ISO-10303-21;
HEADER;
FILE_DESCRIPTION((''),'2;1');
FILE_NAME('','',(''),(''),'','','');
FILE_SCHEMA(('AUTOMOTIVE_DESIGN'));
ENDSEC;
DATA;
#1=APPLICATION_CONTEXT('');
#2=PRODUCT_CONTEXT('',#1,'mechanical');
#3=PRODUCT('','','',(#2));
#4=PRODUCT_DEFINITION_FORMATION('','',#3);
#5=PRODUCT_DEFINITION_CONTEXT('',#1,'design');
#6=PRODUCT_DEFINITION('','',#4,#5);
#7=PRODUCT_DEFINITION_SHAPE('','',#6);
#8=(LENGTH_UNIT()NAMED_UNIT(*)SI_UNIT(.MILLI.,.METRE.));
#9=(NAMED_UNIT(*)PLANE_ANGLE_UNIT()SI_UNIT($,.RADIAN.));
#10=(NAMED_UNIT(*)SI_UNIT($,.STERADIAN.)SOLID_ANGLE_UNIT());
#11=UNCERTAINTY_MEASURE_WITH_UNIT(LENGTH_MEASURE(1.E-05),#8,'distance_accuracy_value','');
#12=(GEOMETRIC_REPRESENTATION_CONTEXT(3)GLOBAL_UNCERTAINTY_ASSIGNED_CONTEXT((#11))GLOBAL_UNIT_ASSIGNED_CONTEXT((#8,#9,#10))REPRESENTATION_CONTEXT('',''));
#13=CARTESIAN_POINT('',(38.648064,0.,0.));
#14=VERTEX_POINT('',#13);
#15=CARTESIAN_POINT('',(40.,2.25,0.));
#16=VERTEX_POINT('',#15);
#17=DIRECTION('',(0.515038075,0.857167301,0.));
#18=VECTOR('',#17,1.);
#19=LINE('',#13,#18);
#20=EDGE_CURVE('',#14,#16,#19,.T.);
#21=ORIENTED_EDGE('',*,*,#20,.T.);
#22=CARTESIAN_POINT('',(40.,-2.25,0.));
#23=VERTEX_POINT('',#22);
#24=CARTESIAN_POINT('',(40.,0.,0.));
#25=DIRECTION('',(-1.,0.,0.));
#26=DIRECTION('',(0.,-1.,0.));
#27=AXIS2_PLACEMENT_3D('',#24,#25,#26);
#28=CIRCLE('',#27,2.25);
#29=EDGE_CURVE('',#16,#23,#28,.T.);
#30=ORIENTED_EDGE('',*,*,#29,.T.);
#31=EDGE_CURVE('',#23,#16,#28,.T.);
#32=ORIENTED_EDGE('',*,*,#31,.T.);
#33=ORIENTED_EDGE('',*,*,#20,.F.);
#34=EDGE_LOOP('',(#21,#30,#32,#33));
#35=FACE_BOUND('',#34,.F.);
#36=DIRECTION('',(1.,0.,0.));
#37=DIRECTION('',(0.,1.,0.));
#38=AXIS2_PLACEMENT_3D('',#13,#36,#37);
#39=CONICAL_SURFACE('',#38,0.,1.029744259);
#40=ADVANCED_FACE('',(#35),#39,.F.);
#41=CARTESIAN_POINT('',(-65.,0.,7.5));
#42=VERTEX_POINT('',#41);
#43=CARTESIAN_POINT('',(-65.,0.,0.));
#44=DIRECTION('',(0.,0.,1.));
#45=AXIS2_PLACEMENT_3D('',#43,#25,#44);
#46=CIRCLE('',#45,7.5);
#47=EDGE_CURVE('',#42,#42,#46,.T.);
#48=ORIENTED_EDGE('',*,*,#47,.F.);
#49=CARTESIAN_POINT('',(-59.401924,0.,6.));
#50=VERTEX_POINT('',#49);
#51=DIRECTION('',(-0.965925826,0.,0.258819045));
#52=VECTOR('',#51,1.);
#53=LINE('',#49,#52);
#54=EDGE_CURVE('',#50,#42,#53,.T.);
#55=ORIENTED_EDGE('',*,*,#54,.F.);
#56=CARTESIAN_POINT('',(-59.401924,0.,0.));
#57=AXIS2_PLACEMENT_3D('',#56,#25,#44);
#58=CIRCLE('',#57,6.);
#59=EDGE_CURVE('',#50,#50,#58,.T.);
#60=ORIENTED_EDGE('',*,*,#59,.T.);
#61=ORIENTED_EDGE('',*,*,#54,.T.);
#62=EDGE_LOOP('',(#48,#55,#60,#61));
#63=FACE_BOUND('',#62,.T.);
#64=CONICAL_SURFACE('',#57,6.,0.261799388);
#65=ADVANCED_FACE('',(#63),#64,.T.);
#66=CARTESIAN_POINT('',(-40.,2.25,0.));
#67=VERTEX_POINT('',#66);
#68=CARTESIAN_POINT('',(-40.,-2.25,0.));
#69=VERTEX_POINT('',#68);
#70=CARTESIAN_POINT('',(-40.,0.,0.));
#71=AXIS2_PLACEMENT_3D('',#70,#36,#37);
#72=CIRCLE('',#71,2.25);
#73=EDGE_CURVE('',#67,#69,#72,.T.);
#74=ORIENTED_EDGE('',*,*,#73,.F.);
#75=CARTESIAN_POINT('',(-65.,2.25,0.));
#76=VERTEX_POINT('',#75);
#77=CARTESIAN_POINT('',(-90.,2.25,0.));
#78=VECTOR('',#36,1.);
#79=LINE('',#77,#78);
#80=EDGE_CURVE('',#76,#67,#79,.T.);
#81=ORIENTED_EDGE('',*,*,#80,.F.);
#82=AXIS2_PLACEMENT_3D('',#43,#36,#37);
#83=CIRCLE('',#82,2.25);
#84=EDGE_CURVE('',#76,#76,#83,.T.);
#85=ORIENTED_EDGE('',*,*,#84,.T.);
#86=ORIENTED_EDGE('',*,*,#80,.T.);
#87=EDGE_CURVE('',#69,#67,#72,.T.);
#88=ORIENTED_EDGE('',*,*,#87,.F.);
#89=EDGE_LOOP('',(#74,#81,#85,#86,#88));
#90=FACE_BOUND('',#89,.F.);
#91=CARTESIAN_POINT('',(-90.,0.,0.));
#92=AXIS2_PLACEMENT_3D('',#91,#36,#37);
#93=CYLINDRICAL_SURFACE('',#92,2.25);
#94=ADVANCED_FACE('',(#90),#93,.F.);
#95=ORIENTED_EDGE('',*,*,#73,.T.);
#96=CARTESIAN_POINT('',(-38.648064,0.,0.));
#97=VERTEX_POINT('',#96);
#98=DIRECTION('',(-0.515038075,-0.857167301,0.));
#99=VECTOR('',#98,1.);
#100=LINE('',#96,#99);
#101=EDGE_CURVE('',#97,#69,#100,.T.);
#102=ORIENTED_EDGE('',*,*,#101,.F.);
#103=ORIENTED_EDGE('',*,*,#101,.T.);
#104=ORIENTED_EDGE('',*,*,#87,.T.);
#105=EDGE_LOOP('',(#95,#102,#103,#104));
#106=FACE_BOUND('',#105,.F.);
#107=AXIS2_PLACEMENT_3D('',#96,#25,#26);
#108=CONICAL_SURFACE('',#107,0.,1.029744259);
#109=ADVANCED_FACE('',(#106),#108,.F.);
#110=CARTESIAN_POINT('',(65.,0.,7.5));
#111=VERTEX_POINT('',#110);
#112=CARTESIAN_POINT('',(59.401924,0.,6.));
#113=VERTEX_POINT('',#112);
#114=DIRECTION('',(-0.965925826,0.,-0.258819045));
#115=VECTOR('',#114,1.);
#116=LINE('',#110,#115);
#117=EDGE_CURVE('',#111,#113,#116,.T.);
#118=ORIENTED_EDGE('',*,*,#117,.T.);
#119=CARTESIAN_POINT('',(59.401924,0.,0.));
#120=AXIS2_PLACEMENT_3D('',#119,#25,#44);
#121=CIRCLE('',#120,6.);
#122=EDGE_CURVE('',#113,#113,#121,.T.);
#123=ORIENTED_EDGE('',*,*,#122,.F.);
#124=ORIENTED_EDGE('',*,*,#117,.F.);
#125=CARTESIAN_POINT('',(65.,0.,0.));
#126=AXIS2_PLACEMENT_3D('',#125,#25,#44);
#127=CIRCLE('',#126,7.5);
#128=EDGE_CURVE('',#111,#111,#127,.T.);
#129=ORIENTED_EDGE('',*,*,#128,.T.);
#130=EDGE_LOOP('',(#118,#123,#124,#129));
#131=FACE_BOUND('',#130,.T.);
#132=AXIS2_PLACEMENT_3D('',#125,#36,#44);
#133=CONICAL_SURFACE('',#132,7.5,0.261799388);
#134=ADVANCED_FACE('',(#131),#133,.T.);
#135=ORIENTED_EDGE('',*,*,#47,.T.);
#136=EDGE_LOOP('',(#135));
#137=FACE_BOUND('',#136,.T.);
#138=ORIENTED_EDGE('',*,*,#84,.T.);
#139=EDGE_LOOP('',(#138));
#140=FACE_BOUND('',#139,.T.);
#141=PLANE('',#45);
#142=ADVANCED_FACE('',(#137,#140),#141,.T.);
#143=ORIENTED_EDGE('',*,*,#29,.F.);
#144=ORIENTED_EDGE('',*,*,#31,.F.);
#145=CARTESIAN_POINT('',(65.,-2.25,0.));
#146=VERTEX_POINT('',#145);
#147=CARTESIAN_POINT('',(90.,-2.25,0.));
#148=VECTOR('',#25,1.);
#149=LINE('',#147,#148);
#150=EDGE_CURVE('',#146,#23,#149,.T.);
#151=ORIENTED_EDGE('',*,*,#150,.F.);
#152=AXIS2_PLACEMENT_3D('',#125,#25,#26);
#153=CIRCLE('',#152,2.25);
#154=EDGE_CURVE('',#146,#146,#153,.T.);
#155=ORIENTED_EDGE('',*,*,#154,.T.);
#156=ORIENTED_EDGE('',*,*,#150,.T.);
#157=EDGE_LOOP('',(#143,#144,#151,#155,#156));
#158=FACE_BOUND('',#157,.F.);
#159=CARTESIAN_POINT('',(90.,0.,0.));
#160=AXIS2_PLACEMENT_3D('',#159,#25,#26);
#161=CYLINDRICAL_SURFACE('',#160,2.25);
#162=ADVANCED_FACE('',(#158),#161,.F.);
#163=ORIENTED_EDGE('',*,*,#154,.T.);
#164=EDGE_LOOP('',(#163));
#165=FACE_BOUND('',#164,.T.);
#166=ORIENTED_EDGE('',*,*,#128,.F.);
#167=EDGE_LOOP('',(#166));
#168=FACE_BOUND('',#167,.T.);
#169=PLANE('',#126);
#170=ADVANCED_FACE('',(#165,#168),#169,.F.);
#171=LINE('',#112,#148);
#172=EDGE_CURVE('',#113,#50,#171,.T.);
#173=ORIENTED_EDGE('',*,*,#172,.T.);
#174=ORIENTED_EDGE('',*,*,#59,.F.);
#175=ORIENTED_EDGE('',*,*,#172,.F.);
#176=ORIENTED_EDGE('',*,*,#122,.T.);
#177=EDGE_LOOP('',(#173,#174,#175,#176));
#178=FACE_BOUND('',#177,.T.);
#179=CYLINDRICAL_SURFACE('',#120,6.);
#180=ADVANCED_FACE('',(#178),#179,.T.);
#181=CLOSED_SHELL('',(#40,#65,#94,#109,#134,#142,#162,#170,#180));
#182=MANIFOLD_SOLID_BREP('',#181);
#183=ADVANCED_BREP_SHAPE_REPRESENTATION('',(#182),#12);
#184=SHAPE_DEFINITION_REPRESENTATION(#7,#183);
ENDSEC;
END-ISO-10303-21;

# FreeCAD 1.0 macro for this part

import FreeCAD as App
import Part
import Sketcher

V = App.Vector
Q = App.Units.Quantity

doc = App.newDocument("Part")
body = doc.addObject("PartDesign::Body", "Body")

# Sketch on XZ plane
sketch1 = body.newObject("Sketcher::SketchObject", "Sketch")
sketch1.AttachmentSupport = (doc.getObject("XZ_Plane"), [""])
sketch1.MapMode = "FlatFace"
sketch1.addGeometry([
    Part.LineSegment(V(-65, 8, 0), V(-65, 0, 0)),  # 0
    Part.LineSegment(V(-65, 0, 0), V(65, 0, 0)),  # 1
    Part.LineSegment(V(65, 0, 0), V(65, 8, 0)),  # 2
    Part.LineSegment(V(65, 8, 0), V(59, 6, 0)),  # 3
    Part.LineSegment(V(59, 6, 0), V(-59, 6, 0)),  # 4
    Part.LineSegment(V(-59, 6, 0), V(-65, 8, 0)),  # 5
], False)
sketch1.addConstraint([
    Sketcher.Constraint("Coincident", 0, 2, 1, 1),
    Sketcher.Constraint("Coincident", 1, 2, 2, 1),
    Sketcher.Constraint("Coincident", 2, 2, 3, 1),
    Sketcher.Constraint("Coincident", 3, 2, 4, 1),
    Sketcher.Constraint("Coincident", 4, 2, 5, 1),
    Sketcher.Constraint("Coincident", 5, 2, 0, 1),
    Sketcher.Constraint("Vertical", 0),
    Sketcher.Constraint("Horizontal", 1),
    Sketcher.Constraint("Vertical", 2),
    Sketcher.Constraint("Horizontal", 4),
    Sketcher.Constraint("Symmetric", 0, 2, 1, 2, -1, 1),
    Sketcher.Constraint("Horizontal", 2, 2, 5, 2),
    Sketcher.Constraint("Equal", 3, 5),
    Sketcher.Constraint("DistanceX", 1, 1, 1, 2, 130.0),
    Sketcher.Constraint("Angle", 3, Q("-165 deg")),
    Sketcher.Constraint("DistanceY", 0, 2, 0, 1, 7.5),
    Sketcher.Constraint("DistanceY", -1, 1, 3, 2, 6.0),
])
revolution = body.newObject("PartDesign::Revolution", "Revolution")
revolution.Profile = sketch1
revolution.ReferenceAxis = (sketch1, ["H_Axis"])
revolution.Angle = 360

# Sketch on YZ plane
sketch2 = body.newObject("Sketcher::SketchObject", "Sketch001")
sketch2.AttachmentSupport = (doc.getObject("YZ_Plane"), [""])
sketch2.MapMode = "FlatFace"
sketch2.AttachmentOffset = App.Placement(V(0, 0, -65), App.Rotation())
sketch2.addGeometry(Part.Circle(V(0, 0, 0), V(0, 0, 1), 2.2), False)
sketch2.addConstraint([
    Sketcher.Constraint("Coincident", 0, 3, -1, 1),
    Sketcher.Constraint("Diameter", 0, 4.5),
])
doc.recompute()
hole = body.newObject("PartDesign::Hole", "Hole")
hole.Profile = sketch2
hole.ThreadType = "None"
hole.Diameter = 4.5
hole.DepthType = "Dimension"
hole.Depth = 25
hole.DrillPoint = "Angled"
hole.DrillPointAngle = 118
hole.Reversed = True

# Sketch on YZ plane
sketch3 = body.newObject("Sketcher::SketchObject", "Sketch002")
sketch3.AttachmentSupport = (doc.getObject("YZ_Plane"), [""])
sketch3.MapMode = "FlatFace"
sketch3.AttachmentOffset = App.Placement(V(0, 0, 65), App.Rotation())
sketch3.addGeometry(Part.Circle(V(0, 0, 0), V(0, 0, 1), 2.2), False)
sketch3.addConstraint([
    Sketcher.Constraint("Coincident", 0, 3, -1, 1),
    Sketcher.Constraint("Diameter", 0, 4.5),
])
doc.recompute()
hole2 = body.newObject("PartDesign::Hole", "Hole001")
hole2.Profile = sketch3
hole2.ThreadType = "None"
hole2.Diameter = 4.5
hole2.DepthType = "Dimension"
hole2.Depth = 25
hole2.DrillPoint = "Angled"
hole2.DrillPointAngle = 118

doc.recompute()
